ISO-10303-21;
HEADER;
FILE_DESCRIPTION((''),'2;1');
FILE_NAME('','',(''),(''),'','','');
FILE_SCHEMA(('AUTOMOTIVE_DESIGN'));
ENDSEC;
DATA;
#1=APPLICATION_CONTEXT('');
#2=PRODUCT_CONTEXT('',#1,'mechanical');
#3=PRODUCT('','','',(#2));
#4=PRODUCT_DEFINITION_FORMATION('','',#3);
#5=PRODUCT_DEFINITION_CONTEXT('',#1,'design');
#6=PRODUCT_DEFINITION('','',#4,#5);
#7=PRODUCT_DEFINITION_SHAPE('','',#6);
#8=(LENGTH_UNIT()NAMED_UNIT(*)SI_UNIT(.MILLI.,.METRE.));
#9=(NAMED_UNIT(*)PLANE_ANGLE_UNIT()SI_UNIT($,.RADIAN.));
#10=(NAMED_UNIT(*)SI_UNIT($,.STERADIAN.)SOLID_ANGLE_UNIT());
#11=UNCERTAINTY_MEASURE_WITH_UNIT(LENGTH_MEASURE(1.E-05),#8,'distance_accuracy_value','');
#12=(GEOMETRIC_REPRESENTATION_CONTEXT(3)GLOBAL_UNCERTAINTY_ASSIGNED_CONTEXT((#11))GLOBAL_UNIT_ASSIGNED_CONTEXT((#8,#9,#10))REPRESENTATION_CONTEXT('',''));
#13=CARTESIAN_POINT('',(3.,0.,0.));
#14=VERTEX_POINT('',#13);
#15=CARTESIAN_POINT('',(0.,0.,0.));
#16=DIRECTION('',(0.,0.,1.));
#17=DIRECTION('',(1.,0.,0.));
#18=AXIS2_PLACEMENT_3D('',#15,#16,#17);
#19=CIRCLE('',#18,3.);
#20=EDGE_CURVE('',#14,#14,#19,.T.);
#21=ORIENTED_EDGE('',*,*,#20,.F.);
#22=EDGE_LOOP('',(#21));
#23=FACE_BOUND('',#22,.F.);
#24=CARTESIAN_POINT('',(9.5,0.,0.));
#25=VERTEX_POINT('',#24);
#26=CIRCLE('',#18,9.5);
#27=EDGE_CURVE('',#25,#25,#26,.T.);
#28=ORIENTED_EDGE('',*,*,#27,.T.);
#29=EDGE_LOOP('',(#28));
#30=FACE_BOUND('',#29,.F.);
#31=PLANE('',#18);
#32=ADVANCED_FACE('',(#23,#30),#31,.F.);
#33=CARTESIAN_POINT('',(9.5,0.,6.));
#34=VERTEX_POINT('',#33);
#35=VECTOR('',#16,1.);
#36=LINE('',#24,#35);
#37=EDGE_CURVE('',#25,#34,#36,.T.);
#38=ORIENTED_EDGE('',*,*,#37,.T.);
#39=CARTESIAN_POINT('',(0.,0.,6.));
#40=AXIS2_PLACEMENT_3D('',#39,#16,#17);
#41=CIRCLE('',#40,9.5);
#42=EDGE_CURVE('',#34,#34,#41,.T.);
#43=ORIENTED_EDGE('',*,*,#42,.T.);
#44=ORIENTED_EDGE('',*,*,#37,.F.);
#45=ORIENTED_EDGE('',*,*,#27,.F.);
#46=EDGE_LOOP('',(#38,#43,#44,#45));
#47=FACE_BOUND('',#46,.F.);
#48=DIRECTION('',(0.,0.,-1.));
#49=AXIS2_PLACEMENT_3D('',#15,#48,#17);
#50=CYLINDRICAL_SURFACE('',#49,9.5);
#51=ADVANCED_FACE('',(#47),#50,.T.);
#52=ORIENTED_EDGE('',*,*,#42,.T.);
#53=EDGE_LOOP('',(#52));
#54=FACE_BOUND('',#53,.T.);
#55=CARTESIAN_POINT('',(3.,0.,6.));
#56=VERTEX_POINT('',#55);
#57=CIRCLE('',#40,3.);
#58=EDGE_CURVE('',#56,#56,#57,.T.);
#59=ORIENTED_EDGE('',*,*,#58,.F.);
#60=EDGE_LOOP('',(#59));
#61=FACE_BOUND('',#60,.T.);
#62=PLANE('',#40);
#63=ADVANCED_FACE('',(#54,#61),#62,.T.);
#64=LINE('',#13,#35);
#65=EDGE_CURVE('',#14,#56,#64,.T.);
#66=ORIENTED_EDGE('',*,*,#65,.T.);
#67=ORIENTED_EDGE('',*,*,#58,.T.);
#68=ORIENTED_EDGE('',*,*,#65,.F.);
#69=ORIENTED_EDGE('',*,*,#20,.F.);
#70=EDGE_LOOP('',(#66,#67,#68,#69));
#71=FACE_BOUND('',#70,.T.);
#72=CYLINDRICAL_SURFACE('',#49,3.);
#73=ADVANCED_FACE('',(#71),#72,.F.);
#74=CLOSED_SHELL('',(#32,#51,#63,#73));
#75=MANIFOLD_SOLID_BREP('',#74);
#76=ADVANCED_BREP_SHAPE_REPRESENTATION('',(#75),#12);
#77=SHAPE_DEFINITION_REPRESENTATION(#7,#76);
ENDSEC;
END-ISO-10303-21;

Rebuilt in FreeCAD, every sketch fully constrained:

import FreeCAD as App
import Part
import Sketcher
Q = App.Units.Quantity

doc = App.newDocument("Part")
params = doc.addObject("Spreadsheet::Sheet", "Params")
for row, (alias, value) in enumerate([
    ("sketch1_diameter", "19 mm"),
    ("sketch1_diameter2", "6 mm"),
    ("pad1_length", "6 mm"),
], start=1):
    params.set(f"A{row}", alias)
    params.set(f"B{row}", "=" + value)
    params.setAlias(f"B{row}", alias)

body = doc.addObject("PartDesign::Body", "Body")

# Sketch on XY plane
sketch1 = body.newObject("Sketcher::SketchObject", "Sketch")
sketch1.AttachmentSupport = (doc.getObject("XY_Plane"), [""])
sketch1.MapMode = "FlatFace"
sketch1.addGeometry([
    Part.Circle(App.Vector(0, 0, 0), App.Vector(0, 0, 1), 9.5),
    Part.Circle(App.Vector(0, 0, 0), App.Vector(0, 0, 1), 3),
], False)
sketch1.addConstraint([
    Sketcher.Constraint("Coincident", 0, 3, -1, 1),
    Sketcher.Constraint("Coincident", 1, 3, -1, 1),
    Sketcher.Constraint("Diameter", 0, Q("19 mm")),
    Sketcher.Constraint("Diameter", 1, Q("6 mm")),
])
sketch1.setExpression("Constraints[2]", "Params.sketch1_diameter")
sketch1.setExpression("Constraints[3]", "Params.sketch1_diameter2")
pad1 = body.newObject("PartDesign::Pad", "Pad")
pad1.Profile = sketch1
pad1.setExpression("Length", "Params.pad1_length")

doc.recompute()
